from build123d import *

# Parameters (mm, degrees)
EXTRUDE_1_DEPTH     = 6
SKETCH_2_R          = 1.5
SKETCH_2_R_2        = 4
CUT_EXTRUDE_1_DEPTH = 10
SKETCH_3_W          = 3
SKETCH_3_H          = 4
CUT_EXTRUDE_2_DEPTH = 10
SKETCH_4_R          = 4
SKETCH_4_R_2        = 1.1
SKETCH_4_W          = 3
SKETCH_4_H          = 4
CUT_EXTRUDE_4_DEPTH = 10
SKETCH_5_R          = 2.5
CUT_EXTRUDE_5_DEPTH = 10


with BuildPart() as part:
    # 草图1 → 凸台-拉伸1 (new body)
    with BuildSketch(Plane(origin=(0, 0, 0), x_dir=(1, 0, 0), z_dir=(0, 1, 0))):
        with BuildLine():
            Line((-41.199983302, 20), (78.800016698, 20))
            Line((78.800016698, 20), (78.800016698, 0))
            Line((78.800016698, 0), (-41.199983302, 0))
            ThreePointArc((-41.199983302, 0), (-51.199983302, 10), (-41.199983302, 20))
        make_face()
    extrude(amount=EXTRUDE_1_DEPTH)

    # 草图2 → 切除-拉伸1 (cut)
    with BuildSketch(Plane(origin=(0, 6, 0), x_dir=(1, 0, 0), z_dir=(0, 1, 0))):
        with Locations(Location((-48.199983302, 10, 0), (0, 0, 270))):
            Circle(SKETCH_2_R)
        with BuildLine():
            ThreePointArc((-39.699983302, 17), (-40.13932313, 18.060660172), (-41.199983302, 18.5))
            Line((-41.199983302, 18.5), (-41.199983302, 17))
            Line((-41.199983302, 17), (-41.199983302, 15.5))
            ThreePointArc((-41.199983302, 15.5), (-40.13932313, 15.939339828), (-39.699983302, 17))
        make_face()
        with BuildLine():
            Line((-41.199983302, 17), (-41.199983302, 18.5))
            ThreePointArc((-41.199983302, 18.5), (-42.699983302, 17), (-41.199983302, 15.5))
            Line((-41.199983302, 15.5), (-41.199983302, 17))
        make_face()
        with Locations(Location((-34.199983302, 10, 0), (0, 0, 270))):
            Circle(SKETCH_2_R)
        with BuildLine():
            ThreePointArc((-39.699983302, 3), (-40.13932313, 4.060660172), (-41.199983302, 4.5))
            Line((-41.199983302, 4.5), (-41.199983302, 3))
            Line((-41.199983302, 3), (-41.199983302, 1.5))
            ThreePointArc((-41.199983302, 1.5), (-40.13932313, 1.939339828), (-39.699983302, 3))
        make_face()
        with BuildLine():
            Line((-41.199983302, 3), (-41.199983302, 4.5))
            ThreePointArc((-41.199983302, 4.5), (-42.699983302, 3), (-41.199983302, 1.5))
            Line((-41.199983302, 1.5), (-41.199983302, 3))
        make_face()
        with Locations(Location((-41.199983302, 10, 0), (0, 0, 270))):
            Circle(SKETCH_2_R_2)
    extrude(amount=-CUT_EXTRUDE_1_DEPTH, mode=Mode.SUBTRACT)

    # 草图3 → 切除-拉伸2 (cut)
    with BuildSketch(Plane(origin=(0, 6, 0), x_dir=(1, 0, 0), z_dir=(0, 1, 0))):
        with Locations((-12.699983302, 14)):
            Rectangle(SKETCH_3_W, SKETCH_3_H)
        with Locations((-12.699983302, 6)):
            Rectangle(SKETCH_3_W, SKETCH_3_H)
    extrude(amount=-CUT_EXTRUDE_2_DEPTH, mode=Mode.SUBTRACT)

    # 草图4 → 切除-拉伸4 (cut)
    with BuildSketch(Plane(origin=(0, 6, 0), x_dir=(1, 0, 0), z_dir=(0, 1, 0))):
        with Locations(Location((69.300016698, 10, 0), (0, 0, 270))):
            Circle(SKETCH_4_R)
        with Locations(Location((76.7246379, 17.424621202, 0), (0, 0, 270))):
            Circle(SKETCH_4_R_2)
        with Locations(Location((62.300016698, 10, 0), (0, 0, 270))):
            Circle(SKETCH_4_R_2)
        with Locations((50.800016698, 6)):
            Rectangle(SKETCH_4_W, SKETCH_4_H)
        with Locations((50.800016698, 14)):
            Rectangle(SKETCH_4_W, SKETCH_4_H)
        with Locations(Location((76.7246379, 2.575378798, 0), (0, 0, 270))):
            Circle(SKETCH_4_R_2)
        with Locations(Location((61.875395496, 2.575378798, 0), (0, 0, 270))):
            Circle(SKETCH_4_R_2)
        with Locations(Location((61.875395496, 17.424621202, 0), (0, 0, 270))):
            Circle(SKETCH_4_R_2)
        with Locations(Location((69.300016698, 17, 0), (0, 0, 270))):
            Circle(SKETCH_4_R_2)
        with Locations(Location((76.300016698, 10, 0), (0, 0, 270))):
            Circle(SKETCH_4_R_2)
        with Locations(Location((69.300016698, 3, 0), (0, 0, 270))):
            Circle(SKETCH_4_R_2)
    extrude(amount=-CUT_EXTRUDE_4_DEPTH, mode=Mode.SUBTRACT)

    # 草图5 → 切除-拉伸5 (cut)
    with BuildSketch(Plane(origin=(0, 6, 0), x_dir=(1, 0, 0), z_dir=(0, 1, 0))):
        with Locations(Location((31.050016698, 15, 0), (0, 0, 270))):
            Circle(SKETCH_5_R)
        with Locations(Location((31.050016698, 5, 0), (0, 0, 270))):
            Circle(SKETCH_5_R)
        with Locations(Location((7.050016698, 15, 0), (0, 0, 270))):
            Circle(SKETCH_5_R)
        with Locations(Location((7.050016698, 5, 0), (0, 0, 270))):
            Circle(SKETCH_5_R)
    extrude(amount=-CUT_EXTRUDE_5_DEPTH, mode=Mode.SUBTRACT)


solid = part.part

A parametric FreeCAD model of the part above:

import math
import FreeCAD as App
import Part
import Sketcher
from FreeCAD import Vector
Q = App.Units.Quantity

doc = App.newDocument("Part")
body = doc.addObject("PartDesign::Body", "Body")

# Sketch on XZ plane
sketch1 = body.newObject("Sketcher::SketchObject", "Sketch")
sketch1.AttachmentSupport = (doc.getObject("XZ_Plane"), [""])
sketch1.MapMode = "FlatFace"
sketch1.addGeometry(Part.LineSegment(Vector(79, -20, 0), Vector(-41, -20, 0)), False)
sketch1.addGeometry(Part.ArcOfCircle(Part.Circle(Vector(-41, -10, 0), Vector(0, 0, 1), 10), math.radians(90), math.radians(270)), False)
sketch1.addGeometry(Part.LineSegment(Vector(-41, 0, 0), Vector(79, 0, 0)), False)
sketch1.addGeometry(Part.LineSegment(Vector(79, 0, 0), Vector(79, -20, 0)), False)
sketch1.addConstraint(Sketcher.Constraint("Tangent", 0, 2, 1, 2))
sketch1.addConstraint(Sketcher.Constraint("Tangent", 1, 1, 2, 1))
sketch1.addConstraint(Sketcher.Constraint("Coincident", 2, 2, 3, 1))
sketch1.addConstraint(Sketcher.Constraint("Coincident", 3, 2, 0, 1))
sketch1.addConstraint(Sketcher.Constraint("Horizontal", 0))
sketch1.addConstraint(Sketcher.Constraint("Horizontal", 2))
sketch1.addConstraint(Sketcher.Constraint("Vertical", 3))
sketch1.addConstraint(Sketcher.Constraint("PointOnObject", 1, 1, -1))
sketch1.addConstraint(Sketcher.Constraint("Radius", 1, Q("10 mm")))
sketch1.addConstraint(Sketcher.Constraint("DistanceX", 0, 2, 0, 1, Q("120 mm")))
sketch1.addConstraint(Sketcher.Constraint("DistanceX", 1, 3, -1, 1, Q("41.199983 mm")))
pad1 = body.newObject("PartDesign::Pad", "Pad")
pad1.Profile = sketch1
pad1.Length = 6
pad1.Reversed = True

# Sketch on XZ plane
sketch2 = body.newObject("Sketcher::SketchObject", "Sketch001")
sketch2.AttachmentSupport = (doc.getObject("XZ_Plane"), [""])
sketch2.MapMode = "FlatFace"
sketch2.AttachmentOffset = App.Placement(Vector(0, 0, -6), App.Rotation())
sketch2.addGeometry(Part.Circle(Vector(-48.2, -10, 0), Vector(0, 0, 1), 1.5), False)
sketch2.addGeometry(Part.ArcOfCircle(Part.Circle(Vector(-41.2, -17, 0), Vector(0, 0, 1), 1.5), math.radians(-90), math.radians(0)), False)
sketch2.addGeometry(Part.ArcOfCircle(Part.Circle(Vector(-41.2, -17, 0), Vector(0, 0, 1), 1.5), math.radians(90), math.radians(270)), False)
sketch2.addGeometry(Part.ArcOfCircle(Part.Circle(Vector(-41.2, -17, 0), Vector(0, 0, 1), 1.5), math.radians(0), math.radians(90)), False)
sketch2.addGeometry(Part.Circle(Vector(-34.2, -10, 0), Vector(0, 0, 1), 1.5), False)
sketch2.addGeometry(Part.ArcOfCircle(Part.Circle(Vector(-41.2, -3, 0), Vector(0, 0, 1), 1.5), math.radians(-90), math.radians(0)), False)
sketch2.addGeometry(Part.ArcOfCircle(Part.Circle(Vector(-41.2, -3, 0), Vector(0, 0, 1), 1.5), math.radians(90), math.radians(270)), False)
sketch2.addGeometry(Part.ArcOfCircle(Part.Circle(Vector(-41.2, -3, 0), Vector(0, 0, 1), 1.5), math.radians(0), math.radians(90)), False)
sketch2.addGeometry(Part.Circle(Vector(-41.2, -10, 0), Vector(0, 0, 1), 4), False)
sketch2.addConstraint(Sketcher.Constraint("Tangent", 1, 1, 2, 2))
sketch2.addConstraint(Sketcher.Constraint("Tangent", 2, 1, 3, 2))
sketch2.addConstraint(Sketcher.Constraint("Tangent", 3, 1, 1, 2))
sketch2.addConstraint(Sketcher.Constraint("Tangent", 5, 1, 6, 2))
sketch2.addConstraint(Sketcher.Constraint("Tangent", 6, 1, 7, 2))
sketch2.addConstraint(Sketcher.Constraint("Tangent", 7, 1, 5, 2))
sketch2.addConstraint(Sketcher.Constraint("Equal", 0, 1))
sketch2.addConstraint(Sketcher.Constraint("Equal", 3, 4))
sketch2.addConstraint(Sketcher.Constraint("Equal", 4, 5))
sketch2.addConstraint(Sketcher.Constraint("Horizontal", 0, 3, 4, 3))
sketch2.addConstraint(Sketcher.Constraint("Horizontal", 4, 3, 8, 3))
sketch2.addConstraint(Sketcher.Constraint("Horizontal", 2, 3, 3, 1))
sketch2.addConstraint(Sketcher.Constraint("Horizontal", 6, 3, 7, 1))
sketch2.addConstraint(Sketcher.Constraint("Vertical", 3, 3, 5, 3))
sketch2.addConstraint(Sketcher.Constraint("Vertical", 7, 3, 8, 3))
sketch2.addConstraint(Sketcher.Constraint("Vertical", 8, 3, 1, 1))
sketch2.addConstraint(Sketcher.Constraint("Vertical", 1, 1, 2, 1))
sketch2.addConstraint(Sketcher.Constraint("Vertical", 2, 1, 5, 1))
sketch2.addConstraint(Sketcher.Constraint("Vertical", 5, 1, 6, 1))
sketch2.addConstraint(Sketcher.Constraint("Diameter", 0, Q("3 mm")))
sketch2.addConstraint(Sketcher.Constraint("Diameter", 8, Q("8 mm")))
sketch2.addConstraint(Sketcher.Constraint("DistanceY", 0, 3, -1, 1, Q("10 mm")))
sketch2.addConstraint(Sketcher.Constraint("DistanceY", 1, 3, -1, 1, Q("17 mm")))
sketch2.addConstraint(Sketcher.Constraint("DistanceY", 5, 3, -1, 1, Q("3 mm")))
sketch2.addConstraint(Sketcher.Constraint("DistanceX", 0, 3, 1, 3, Q("7 mm")))
sketch2.addConstraint(Sketcher.Constraint("DistanceX", 3, 3, 4, 3, Q("7 mm")))
sketch2.addConstraint(Sketcher.Constraint("DistanceX", 0, 3, -1, 1, Q("48.199983 mm")))
pocket1 = body.newObject("PartDesign::Pocket", "Pocket")
pocket1.Profile = sketch2
pocket1.Length = 10
pocket1.Reversed = True

# Sketch on XZ plane
sketch3 = body.newObject("Sketcher::SketchObject", "Sketch002")
sketch3.AttachmentSupport = (doc.getObject("XZ_Plane"), [""])
sketch3.MapMode = "FlatFace"
sketch3.AttachmentOffset = App.Placement(Vector(0, 0, -6), App.Rotation())
sketch3.addGeometry(Part.LineSegment(Vector(-14.2, -16, 0), Vector(-14.2, -12, 0)), False)
sketch3.addGeometry(Part.LineSegment(Vector(-14.2, -12, 0), Vector(-11.2, -12, 0)), False)
sketch3.addGeometry(Part.LineSegment(Vector(-11.2, -12, 0), Vector(-11.2, -16, 0)), False)
sketch3.addGeometry(Part.LineSegment(Vector(-11.2, -16, 0), Vector(-14.2, -16, 0)), False)
sketch3.addGeometry(Part.LineSegment(Vector(-14.2, -8, 0), Vector(-14.2, -4, 0)), False)
sketch3.addGeometry(Part.LineSegment(Vector(-14.2, -4, 0), Vector(-11.2, -4, 0)), False)
sketch3.addGeometry(Part.LineSegment(Vector(-11.2, -4, 0), Vector(-11.2, -8, 0)), False)
sketch3.addGeometry(Part.LineSegment(Vector(-11.2, -8, 0), Vector(-14.2, -8, 0)), False)
sketch3.addConstraint(Sketcher.Constraint("Coincident", 0, 2, 1, 1))
sketch3.addConstraint(Sketcher.Constraint("Coincident", 1, 2, 2, 1))
sketch3.addConstraint(Sketcher.Constraint("Coincident", 2, 2, 3, 1))
sketch3.addConstraint(Sketcher.Constraint("Coincident", 3, 2, 0, 1))
sketch3.addConstraint(Sketcher.Constraint("Coincident", 4, 2, 5, 1))
sketch3.addConstraint(Sketcher.Constraint("Coincident", 5, 2, 6, 1))
sketch3.addConstraint(Sketcher.Constraint("Coincident", 6, 2, 7, 1))
sketch3.addConstraint(Sketcher.Constraint("Coincident", 7, 2, 4, 1))
sketch3.addConstraint(Sketcher.Constraint("Vertical", 0))
sketch3.addConstraint(Sketcher.Constraint("Horizontal", 1))
sketch3.addConstraint(Sketcher.Constraint("Vertical", 2))
sketch3.addConstraint(Sketcher.Constraint("Horizontal", 3))
sketch3.addConstraint(Sketcher.Constraint("Vertical", 4))
sketch3.addConstraint(Sketcher.Constraint("Horizontal", 5))
sketch3.addConstraint(Sketcher.Constraint("Vertical", 6))
sketch3.addConstraint(Sketcher.Constraint("Horizontal", 7))
sketch3.addConstraint(Sketcher.Constraint("Vertical", 3, 2, 4, 2))
sketch3.addConstraint(Sketcher.Constraint("Vertical", 2, 2, 5, 2))
sketch3.addConstraint(Sketcher.Constraint("Equal", 2, 4))
sketch3.addConstraint(Sketcher.Constraint("DistanceX", 1, 1, 1, 2, Q("3 mm")))
sketch3.addConstraint(Sketcher.Constraint("DistanceY", 0, 1, 0, 2, Q("4 mm")))
sketch3.addConstraint(Sketcher.Constraint("DistanceY", 0, 2, -1, 1, Q("12 mm")))
sketch3.addConstraint(Sketcher.Constraint("DistanceY", 4, 2, -1, 1, Q("4 mm")))
sketch3.addConstraint(Sketcher.Constraint("DistanceX", 0, 2, -1, 1, Q("14.199983 mm")))
pocket2 = body.newObject("PartDesign::Pocket", "Pocket001")
pocket2.Profile = sketch3
pocket2.Length = 10
pocket2.Reversed = True

# Sketch on XZ plane
sketch4 = body.newObject("Sketcher::SketchObject", "Sketch003")
sketch4.AttachmentSupport = (doc.getObject("XZ_Plane"), [""])
sketch4.MapMode = "FlatFace"
sketch4.AttachmentOffset = App.Placement(Vector(0, 0, -6), App.Rotation())
sketch4.addGeometry(Part.Circle(Vector(69.3, -10, 0), Vector(0, 0, 1), 4), False)
sketch4.addGeometry(Part.Circle(Vector(76.7, -17.4, 0), Vector(0, 0, 1), 1.1), False)
sketch4.addGeometry(Part.Circle(Vector(62.3, -10, 0), Vector(0, 0, 1), 1.1), False)
sketch4.addGeometry(Part.LineSegment(Vector(49.3, -8, 0), Vector(49.3, -4, 0)), False)
sketch4.addGeometry(Part.LineSegment(Vector(49.3, -4, 0), Vector(52.3, -4, 0)), False)
sketch4.addGeometry(Part.LineSegment(Vector(52.3, -4, 0), Vector(52.3, -8, 0)), False)
sketch4.addGeometry(Part.LineSegment(Vector(52.3, -8, 0), Vector(49.3, -8, 0)), False)
sketch4.addGeometry(Part.LineSegment(Vector(49.3, -16, 0), Vector(49.3, -12, 0)), False)
sketch4.addGeometry(Part.LineSegment(Vector(49.3, -12, 0), Vector(52.3, -12, 0)), False)
sketch4.addGeometry(Part.LineSegment(Vector(52.3, -12, 0), Vector(52.3, -16, 0)), False)
sketch4.addGeometry(Part.LineSegment(Vector(52.3, -16, 0), Vector(49.3, -16, 0)), False)
sketch4.addGeometry(Part.Circle(Vector(76.7, -2.6, 0), Vector(0, 0, 1), 1.1), False)
sketch4.addGeometry(Part.Circle(Vector(61.9, -2.6, 0), Vector(0, 0, 1), 1.1), False)
sketch4.addGeometry(Part.Circle(Vector(61.9, -17.4, 0), Vector(0, 0, 1), 1.1), False)
sketch4.addGeometry(Part.Circle(Vector(69.3, -17, 0), Vector(0, 0, 1), 1.1), False)
sketch4.addGeometry(Part.Circle(Vector(76.3, -10, 0), Vector(0, 0, 1), 1.1), False)
sketch4.addGeometry(Part.Circle(Vector(69.3, -3, 0), Vector(0, 0, 1), 1.1), False)
sketch4.addConstraint(Sketcher.Constraint("Coincident", 3, 2, 4, 1))
sketch4.addConstraint(Sketcher.Constraint("Coincident", 4, 2, 5, 1))
sketch4.addConstraint(Sketcher.Constraint("Coincident", 5, 2, 6, 1))
sketch4.addConstraint(Sketcher.Constraint("Coincident", 6, 2, 3, 1))
sketch4.addConstraint(Sketcher.Constraint("Coincident", 7, 2, 8, 1))
sketch4.addConstraint(Sketcher.Constraint("Coincident", 8, 2, 9, 1))
sketch4.addConstraint(Sketcher.Constraint("Coincident", 9, 2, 10, 1))
sketch4.addConstraint(Sketcher.Constraint("Coincident", 10, 2, 7, 1))
sketch4.addConstraint(Sketcher.Constraint("Vertical", 3))
sketch4.addConstraint(Sketcher.Constraint("Horizontal", 4))
sketch4.addConstraint(Sketcher.Constraint("Vertical", 5))
sketch4.addConstraint(Sketcher.Constraint("Horizontal", 6))
sketch4.addConstraint(Sketcher.Constraint("Vertical", 7))
sketch4.addConstraint(Sketcher.Constraint("Horizontal", 8))
sketch4.addConstraint(Sketcher.Constraint("Vertical", 9))
sketch4.addConstraint(Sketcher.Constraint("Horizontal", 10))
sketch4.addConstraint(Sketcher.Constraint("Equal", 1, 2))
sketch4.addConstraint(Sketcher.Constraint("Equal", 2, 11))
sketch4.addConstraint(Sketcher.Constraint("Equal", 11, 12))
sketch4.addConstraint(Sketcher.Constraint("Equal", 12, 13))
sketch4.addConstraint(Sketcher.Constraint("Equal", 13, 14))
sketch4.addConstraint(Sketcher.Constraint("Equal", 14, 15))
sketch4.addConstraint(Sketcher.Constraint("Equal", 15, 16))
sketch4.addConstraint(Sketcher.Constraint("Horizontal", 0, 3, 2, 3))
sketch4.addConstraint(Sketcher.Constraint("Horizontal", 11, 3, 12, 3))
sketch4.addConstraint(Sketcher.Constraint("Horizontal", 1, 3, 13, 3))
sketch4.addConstraint(Sketcher.Constraint("Horizontal", 2, 3, 15, 3))
sketch4.addConstraint(Sketcher.Constraint("Vertical", 1, 3, 11, 3))
sketch4.addConstraint(Sketcher.Constraint("Vertical", 12, 3, 13, 3))
sketch4.addConstraint(Sketcher.Constraint("Vertical", 0, 3, 14, 3))
sketch4.addConstraint(Sketcher.Constraint("Vertical", 14, 3, 16, 3))
sketch4.addConstraint(Sketcher.Constraint("Vertical", 6, 2, 7, 2))
sketch4.addConstraint(Sketcher.Constraint("Vertical", 5, 2, 8, 2))
sketch4.addConstraint(Sketcher.Constraint("Equal", 5, 7))
sketch4.addConstraint(Sketcher.Constraint("Diameter", 0, Q("8 mm")))
sketch4.addConstraint(Sketcher.Constraint("Diameter", 1, Q("2.2 mm")))
sketch4.addConstraint(Sketcher.Constraint("DistanceX", 4, 1, 4, 2, Q("3 mm")))
sketch4.addConstraint(Sketcher.Constraint("DistanceY", 3, 1, 3, 2, Q("4 mm")))
sketch4.addConstraint(Sketcher.Constraint("DistanceY", 0, 3, -1, 1, Q("10 mm")))
sketch4.addConstraint(Sketcher.Constraint("DistanceY", 14, 3, -1, 1, Q("17 mm")))
sketch4.addConstraint(Sketcher.Constraint("DistanceY", 16, 3, -1, 1, Q("3 mm")))
sketch4.addConstraint(Sketcher.Constraint("DistanceY", 3, 2, -1, 1, Q("4 mm")))
sketch4.addConstraint(Sketcher.Constraint("DistanceY", 7, 2, -1, 1, Q("12 mm")))
sketch4.addConstraint(Sketcher.Constraint("DistanceX", 2, 3, 0, 3, Q("7 mm")))
sketch4.addConstraint(Sketcher.Constraint("DistanceX", 0, 3, 15, 3, Q("7 mm")))
sketch4.addConstraint(Sketcher.Constraint("DistanceX", 3, 2, 2, 3, Q("13 mm")))
sketch4.addConstraint(Sketcher.Constraint("DistanceY", 1, 3, -1, 1, Q("17.424621 mm")))
sketch4.addConstraint(Sketcher.Constraint("DistanceY", 11, 3, -1, 1, Q("2.575379 mm")))
sketch4.addConstraint(Sketcher.Constraint("DistanceX", 0, 3, 1, 3, Q("7.424621 mm")))
sketch4.addConstraint(Sketcher.Constraint("DistanceX", 12, 3, 2, 3, Q("0.424621 mm")))
sketch4.addConstraint(Sketcher.Constraint("DistanceX", -1, 1, 0, 3, Q("69.300017 mm")))
pocket3 = body.newObject("PartDesign::Pocket", "Pocket002")
pocket3.Profile = sketch4
pocket3.Length = 10
pocket3.Reversed = True

# Sketch on XZ plane
sketch5 = body.newObject("Sketcher::SketchObject", "Sketch004")
sketch5.AttachmentSupport = (doc.getObject("XZ_Plane"), [""])
sketch5.MapMode = "FlatFace"
sketch5.AttachmentOffset = App.Placement(Vector(0, 0, -6), App.Rotation())
sketch5.addGeometry(Part.Circle(Vector(31.1, -15, 0), Vector(0, 0, 1), 2.5), False)
sketch5.addGeometry(Part.Circle(Vector(31.1, -5, 0), Vector(0, 0, 1), 2.5), False)
sketch5.addGeometry(Part.Circle(Vector(7.1, -15, 0), Vector(0, 0, 1), 2.5), False)
sketch5.addGeometry(Part.Circle(Vector(7.1, -5, 0), Vector(0, 0, 1), 2.5), False)
sketch5.addConstraint(Sketcher.Constraint("Equal", 0, 1))
sketch5.addConstraint(Sketcher.Constraint("Equal", 1, 2))
sketch5.addConstraint(Sketcher.Constraint("Equal", 2, 3))
sketch5.addConstraint(Sketcher.Constraint("Horizontal", 0, 3, 2, 3))
sketch5.addConstraint(Sketcher.Constraint("Horizontal", 1, 3, 3, 3))
sketch5.addConstraint(Sketcher.Constraint("Vertical", 0, 3, 1, 3))
sketch5.addConstraint(Sketcher.Constraint("Vertical", 2, 3, 3, 3))
sketch5.addConstraint(Sketcher.Constraint("Diameter", 0, Q("5 mm")))
sketch5.addConstraint(Sketcher.Constraint("DistanceY", 0, 3, -1, 1, Q("15 mm")))
sketch5.addConstraint(Sketcher.Constraint("DistanceY", 1, 3, -1, 1, Q("5 mm")))
sketch5.addConstraint(Sketcher.Constraint("DistanceX", 2, 3, 0, 3, Q("24 mm")))
sketch5.addConstraint(Sketcher.Constraint("DistanceX", -1, 1, 0, 3, Q("31.050017 mm")))
pocket4 = body.newObject("PartDesign::Pocket", "Pocket003")
pocket4.Profile = sketch5
pocket4.Length = 10
pocket4.Reversed = True

doc.recompute()
